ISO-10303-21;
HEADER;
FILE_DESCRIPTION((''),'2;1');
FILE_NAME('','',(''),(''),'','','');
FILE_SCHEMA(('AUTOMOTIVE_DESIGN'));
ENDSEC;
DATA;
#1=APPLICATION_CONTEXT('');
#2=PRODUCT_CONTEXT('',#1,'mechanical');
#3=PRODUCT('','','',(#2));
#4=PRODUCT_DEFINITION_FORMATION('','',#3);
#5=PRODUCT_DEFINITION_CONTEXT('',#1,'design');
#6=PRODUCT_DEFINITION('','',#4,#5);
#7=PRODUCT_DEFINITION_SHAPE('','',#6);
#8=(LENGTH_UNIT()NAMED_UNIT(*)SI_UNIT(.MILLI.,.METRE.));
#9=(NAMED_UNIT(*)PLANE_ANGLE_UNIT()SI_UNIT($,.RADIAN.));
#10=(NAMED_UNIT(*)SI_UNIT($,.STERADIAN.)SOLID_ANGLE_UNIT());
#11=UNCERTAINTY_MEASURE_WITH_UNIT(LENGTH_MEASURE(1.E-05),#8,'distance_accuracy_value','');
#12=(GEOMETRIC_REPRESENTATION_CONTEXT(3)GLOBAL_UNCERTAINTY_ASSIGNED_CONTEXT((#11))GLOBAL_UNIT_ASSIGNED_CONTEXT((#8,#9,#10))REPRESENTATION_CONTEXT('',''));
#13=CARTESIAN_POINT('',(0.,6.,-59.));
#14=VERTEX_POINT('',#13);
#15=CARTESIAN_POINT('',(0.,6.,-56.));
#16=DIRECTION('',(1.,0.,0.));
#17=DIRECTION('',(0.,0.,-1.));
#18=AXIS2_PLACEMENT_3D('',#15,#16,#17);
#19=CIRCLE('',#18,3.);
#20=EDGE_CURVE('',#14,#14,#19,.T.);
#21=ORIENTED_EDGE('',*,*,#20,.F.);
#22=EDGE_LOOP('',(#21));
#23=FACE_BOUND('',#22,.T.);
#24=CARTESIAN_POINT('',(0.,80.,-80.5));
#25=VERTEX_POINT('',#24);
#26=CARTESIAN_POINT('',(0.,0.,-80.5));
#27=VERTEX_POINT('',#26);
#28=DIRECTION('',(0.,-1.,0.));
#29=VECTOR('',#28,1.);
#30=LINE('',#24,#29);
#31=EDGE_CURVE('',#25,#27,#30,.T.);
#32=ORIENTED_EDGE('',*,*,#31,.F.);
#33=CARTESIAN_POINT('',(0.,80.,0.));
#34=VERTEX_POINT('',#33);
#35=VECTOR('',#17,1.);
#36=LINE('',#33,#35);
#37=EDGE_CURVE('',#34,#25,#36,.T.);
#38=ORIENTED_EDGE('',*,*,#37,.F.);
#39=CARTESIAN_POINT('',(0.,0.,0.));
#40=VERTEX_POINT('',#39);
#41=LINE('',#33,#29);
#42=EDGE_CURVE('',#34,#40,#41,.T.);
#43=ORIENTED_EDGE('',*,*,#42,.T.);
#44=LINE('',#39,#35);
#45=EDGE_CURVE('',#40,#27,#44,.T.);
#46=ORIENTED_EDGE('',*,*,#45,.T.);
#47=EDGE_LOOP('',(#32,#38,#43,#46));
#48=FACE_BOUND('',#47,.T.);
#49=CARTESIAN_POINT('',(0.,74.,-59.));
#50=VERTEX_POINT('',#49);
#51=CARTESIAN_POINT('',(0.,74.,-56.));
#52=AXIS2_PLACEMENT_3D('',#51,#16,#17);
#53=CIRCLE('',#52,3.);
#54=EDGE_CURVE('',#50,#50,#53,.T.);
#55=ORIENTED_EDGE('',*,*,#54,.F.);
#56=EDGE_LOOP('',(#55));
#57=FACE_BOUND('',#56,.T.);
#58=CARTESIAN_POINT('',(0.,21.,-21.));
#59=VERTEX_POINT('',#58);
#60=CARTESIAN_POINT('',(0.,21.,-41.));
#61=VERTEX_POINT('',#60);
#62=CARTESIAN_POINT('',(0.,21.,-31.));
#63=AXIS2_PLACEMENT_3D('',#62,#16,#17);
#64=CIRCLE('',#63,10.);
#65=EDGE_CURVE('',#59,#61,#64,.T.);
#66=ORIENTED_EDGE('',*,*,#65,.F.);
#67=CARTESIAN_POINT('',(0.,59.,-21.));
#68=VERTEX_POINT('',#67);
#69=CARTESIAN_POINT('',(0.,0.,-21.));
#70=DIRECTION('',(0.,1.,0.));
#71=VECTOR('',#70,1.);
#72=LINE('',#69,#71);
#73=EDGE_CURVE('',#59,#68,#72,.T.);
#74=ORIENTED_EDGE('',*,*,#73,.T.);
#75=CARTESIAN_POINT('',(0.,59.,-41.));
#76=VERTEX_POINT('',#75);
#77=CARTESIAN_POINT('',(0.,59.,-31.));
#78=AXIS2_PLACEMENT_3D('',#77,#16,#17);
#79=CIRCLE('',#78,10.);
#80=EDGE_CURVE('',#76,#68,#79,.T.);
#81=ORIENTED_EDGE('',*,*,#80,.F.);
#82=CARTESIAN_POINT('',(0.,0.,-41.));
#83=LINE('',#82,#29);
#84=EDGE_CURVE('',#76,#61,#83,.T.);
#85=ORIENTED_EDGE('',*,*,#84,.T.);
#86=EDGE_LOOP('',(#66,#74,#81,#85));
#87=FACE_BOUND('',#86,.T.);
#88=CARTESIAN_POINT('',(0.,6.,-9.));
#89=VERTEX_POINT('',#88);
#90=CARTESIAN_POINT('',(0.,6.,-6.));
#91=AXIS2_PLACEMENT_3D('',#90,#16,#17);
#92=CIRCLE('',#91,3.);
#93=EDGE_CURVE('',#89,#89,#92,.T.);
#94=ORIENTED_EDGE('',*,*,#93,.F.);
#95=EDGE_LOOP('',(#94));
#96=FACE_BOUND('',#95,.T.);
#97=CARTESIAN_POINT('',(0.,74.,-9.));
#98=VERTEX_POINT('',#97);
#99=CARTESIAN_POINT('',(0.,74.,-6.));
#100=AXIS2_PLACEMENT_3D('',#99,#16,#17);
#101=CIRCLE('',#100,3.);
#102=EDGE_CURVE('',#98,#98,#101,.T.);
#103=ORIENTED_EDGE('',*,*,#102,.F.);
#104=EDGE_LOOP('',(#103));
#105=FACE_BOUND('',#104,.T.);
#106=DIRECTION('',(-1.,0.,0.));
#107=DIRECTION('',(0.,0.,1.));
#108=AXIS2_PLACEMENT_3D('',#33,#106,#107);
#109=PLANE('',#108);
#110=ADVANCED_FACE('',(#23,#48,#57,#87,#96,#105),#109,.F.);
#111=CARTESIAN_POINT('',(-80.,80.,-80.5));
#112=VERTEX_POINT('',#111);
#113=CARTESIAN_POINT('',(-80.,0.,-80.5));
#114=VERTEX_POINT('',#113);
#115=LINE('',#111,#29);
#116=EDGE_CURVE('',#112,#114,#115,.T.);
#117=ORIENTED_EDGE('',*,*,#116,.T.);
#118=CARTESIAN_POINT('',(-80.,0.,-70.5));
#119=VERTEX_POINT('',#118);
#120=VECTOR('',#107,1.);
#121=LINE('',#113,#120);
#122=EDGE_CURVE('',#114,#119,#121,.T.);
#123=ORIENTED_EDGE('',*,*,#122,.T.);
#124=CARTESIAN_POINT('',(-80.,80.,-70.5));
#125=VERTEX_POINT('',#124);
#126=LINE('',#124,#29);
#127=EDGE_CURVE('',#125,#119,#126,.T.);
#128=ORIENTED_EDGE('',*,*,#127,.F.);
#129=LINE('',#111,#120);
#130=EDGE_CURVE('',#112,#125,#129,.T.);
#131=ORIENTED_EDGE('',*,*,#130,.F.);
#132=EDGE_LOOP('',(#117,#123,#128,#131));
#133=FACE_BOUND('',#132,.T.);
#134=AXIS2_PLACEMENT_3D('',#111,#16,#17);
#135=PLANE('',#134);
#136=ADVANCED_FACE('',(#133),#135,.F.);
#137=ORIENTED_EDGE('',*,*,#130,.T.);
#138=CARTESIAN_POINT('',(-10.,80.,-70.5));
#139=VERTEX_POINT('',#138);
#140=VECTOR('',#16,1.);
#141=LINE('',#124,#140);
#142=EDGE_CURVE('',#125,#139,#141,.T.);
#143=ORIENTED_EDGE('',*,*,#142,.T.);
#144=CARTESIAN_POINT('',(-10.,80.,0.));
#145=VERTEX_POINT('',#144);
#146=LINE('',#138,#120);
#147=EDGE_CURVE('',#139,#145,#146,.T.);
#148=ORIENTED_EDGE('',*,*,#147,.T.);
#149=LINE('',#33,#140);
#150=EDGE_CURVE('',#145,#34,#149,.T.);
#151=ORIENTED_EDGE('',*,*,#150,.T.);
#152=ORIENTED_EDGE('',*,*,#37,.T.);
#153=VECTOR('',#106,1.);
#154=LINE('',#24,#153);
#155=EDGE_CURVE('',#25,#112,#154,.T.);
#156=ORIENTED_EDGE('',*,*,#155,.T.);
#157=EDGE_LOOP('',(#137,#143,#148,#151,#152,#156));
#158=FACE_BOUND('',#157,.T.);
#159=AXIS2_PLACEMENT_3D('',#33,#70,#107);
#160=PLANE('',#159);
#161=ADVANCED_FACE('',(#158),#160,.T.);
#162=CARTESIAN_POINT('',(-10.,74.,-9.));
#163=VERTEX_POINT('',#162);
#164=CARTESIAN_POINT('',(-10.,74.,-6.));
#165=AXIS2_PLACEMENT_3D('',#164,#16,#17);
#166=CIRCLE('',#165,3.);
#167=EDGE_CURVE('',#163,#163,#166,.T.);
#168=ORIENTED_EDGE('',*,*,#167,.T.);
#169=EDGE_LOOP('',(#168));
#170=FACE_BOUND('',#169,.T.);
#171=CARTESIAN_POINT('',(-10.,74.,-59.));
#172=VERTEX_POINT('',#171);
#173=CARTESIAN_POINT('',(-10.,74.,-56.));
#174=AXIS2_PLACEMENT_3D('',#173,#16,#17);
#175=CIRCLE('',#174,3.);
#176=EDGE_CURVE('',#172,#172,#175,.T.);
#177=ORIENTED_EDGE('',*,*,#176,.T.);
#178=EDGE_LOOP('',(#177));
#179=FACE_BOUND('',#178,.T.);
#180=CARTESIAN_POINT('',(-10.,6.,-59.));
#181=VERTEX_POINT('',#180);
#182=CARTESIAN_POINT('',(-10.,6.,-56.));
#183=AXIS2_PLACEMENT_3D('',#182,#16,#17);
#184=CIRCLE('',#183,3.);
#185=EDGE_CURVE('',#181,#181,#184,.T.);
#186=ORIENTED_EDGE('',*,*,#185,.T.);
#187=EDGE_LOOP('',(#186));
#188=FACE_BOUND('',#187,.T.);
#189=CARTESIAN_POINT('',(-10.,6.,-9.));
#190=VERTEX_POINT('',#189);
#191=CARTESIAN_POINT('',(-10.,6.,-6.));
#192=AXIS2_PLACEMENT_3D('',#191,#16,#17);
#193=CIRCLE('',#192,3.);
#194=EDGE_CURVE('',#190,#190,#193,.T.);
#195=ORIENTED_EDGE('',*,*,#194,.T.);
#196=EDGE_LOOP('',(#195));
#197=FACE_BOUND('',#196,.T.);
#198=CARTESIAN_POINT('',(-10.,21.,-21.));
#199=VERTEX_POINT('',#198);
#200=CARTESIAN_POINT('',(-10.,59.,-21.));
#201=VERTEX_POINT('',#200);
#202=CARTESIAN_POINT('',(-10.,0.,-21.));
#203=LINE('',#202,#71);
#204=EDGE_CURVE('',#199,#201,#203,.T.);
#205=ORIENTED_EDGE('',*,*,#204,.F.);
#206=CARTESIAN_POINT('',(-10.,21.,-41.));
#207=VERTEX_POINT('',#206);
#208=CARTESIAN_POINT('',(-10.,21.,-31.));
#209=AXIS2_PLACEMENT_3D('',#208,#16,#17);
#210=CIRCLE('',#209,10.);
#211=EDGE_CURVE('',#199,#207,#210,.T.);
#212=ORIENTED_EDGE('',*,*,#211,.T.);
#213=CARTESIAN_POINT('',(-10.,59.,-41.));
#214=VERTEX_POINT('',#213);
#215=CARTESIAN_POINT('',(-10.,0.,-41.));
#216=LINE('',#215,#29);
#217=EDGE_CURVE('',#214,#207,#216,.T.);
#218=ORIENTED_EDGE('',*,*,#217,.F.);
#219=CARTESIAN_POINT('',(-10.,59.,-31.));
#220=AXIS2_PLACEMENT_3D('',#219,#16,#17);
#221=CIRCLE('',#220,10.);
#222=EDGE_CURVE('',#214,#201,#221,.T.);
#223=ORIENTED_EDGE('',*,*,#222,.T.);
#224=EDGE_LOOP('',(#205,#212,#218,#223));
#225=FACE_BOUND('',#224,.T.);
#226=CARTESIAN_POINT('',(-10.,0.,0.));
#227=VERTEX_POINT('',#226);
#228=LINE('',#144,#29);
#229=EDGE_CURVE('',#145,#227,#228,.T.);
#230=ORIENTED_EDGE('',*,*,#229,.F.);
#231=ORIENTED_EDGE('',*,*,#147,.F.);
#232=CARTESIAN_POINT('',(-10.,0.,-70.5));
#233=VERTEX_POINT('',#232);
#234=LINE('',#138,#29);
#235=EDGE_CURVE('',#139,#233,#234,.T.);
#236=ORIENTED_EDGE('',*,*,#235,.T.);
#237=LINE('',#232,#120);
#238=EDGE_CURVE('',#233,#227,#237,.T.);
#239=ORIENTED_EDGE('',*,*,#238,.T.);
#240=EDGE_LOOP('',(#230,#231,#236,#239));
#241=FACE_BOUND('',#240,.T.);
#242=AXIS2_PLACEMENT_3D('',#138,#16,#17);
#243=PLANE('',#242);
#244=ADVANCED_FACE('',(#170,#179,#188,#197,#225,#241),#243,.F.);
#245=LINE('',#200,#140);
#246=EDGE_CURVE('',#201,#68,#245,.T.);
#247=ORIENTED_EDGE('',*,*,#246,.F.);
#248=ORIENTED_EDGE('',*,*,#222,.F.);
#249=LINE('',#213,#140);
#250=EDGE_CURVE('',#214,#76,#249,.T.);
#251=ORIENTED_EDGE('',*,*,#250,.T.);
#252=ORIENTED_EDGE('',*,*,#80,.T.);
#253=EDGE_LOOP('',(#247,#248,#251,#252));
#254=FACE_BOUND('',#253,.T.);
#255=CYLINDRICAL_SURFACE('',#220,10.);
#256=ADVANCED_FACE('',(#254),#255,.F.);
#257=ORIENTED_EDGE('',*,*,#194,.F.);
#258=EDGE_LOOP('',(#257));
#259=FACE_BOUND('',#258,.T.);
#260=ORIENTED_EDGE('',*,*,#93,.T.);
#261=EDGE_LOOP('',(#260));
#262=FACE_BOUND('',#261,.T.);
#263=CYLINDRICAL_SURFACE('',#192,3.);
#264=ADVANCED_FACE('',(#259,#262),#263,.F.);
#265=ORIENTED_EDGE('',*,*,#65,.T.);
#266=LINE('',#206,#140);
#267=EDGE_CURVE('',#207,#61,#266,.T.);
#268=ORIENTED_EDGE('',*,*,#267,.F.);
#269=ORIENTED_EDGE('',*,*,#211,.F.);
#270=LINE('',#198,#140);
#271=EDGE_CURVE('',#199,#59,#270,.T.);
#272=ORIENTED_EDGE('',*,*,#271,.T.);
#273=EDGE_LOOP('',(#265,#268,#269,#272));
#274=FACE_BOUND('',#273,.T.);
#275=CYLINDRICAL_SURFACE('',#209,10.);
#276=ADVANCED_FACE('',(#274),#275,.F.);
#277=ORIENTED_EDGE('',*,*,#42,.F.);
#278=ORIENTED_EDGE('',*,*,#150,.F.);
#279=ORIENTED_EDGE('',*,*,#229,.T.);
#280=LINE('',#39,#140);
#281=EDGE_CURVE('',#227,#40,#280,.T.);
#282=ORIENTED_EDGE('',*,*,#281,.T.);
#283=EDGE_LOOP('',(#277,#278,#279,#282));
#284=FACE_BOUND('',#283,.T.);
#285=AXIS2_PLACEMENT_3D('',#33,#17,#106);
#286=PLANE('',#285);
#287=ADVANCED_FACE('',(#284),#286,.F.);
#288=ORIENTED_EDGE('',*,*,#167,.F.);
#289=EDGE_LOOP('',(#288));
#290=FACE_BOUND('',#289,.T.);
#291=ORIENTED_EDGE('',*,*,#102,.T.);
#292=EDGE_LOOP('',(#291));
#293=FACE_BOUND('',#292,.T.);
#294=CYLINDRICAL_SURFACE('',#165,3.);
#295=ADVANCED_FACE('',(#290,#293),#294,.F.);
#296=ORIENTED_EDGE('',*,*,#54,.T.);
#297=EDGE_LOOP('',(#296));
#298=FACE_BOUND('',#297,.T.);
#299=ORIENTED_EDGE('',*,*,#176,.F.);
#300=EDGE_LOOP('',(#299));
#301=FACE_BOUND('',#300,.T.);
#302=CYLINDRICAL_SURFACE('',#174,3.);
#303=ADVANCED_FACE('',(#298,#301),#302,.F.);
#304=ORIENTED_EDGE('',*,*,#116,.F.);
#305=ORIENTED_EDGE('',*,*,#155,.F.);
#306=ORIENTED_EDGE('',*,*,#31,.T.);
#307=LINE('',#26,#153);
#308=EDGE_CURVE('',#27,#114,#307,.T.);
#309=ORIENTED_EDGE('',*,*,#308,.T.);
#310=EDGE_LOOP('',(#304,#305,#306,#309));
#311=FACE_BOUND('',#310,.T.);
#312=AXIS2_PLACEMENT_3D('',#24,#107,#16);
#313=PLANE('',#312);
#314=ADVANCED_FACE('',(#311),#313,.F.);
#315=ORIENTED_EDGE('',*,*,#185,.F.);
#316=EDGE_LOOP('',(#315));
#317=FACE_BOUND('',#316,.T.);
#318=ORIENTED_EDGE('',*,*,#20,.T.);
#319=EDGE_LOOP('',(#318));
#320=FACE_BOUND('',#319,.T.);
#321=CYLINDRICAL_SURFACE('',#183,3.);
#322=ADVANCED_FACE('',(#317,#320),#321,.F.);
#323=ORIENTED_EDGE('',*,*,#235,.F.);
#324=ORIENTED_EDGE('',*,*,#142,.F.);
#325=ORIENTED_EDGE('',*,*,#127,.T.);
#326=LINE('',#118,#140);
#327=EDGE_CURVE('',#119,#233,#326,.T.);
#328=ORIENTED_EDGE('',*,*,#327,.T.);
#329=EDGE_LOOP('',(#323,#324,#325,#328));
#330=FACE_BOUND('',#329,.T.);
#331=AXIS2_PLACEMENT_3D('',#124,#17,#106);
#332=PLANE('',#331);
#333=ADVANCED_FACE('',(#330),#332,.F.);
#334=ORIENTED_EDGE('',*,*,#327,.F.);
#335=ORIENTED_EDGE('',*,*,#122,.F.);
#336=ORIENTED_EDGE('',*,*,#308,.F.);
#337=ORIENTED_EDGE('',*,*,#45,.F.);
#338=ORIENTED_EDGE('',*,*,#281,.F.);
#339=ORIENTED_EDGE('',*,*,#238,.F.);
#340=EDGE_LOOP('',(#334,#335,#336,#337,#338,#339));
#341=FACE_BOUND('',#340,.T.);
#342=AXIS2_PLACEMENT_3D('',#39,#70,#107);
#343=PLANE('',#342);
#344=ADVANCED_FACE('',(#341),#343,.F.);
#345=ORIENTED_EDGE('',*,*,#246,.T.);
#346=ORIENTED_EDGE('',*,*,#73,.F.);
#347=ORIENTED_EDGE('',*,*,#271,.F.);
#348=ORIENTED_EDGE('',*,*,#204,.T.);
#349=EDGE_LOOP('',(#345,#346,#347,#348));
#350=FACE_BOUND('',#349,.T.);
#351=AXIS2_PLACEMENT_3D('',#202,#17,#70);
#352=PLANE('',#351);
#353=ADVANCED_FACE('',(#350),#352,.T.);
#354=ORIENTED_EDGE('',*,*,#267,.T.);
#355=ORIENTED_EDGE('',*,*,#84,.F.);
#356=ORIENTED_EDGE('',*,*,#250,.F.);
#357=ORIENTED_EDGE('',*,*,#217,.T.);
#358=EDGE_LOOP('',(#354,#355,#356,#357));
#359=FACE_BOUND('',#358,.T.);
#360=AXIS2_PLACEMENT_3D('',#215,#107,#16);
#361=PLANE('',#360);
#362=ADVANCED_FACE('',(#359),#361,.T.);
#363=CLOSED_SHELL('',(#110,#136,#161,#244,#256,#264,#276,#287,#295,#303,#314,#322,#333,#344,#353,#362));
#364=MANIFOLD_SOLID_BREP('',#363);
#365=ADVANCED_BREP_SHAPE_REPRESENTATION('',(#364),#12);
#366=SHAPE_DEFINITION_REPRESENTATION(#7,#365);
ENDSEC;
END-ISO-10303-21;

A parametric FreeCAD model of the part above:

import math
import FreeCAD as App
import Part
import Sketcher
Q = App.Units.Quantity


def add_polygon(sketch, points):
    """Adds a closed chain of lines whose ends are joined by coincident constraints."""
    first, n = sketch.GeometryCount, len(points)
    for a, b in zip(points, points[1:] + points[:1]):
        sketch.addGeometry(Part.LineSegment(App.Vector(*a, 0), App.Vector(*b, 0)), False)
    for i in range(n):
        sketch.addConstraint(Sketcher.Constraint("Coincident", first + i, 2, first + (i + 1) % n, 1))

doc = App.newDocument("Part")
body = doc.addObject("PartDesign::Body", "Body")

sketch1 = doc.addObject("Sketcher::SketchObject", "Sketch")
body.addObject(sketch1)
sketch1.AttachmentSupport = (doc.XZ_Plane, [""])
sketch1.MapMode = "FlatFace"
add_polygon(sketch1, [(0, 0), (0, -80), (-80, -80), (-80, -70), (-10, -70), (-10, 0)])
sketch1.addConstraint(Sketcher.Constraint("Vertical", 0))
sketch1.addConstraint(Sketcher.Constraint("Horizontal", 1))
sketch1.addConstraint(Sketcher.Constraint("Vertical", 2))
sketch1.addConstraint(Sketcher.Constraint("Horizontal", 3))
sketch1.addConstraint(Sketcher.Constraint("Vertical", 4))
sketch1.addConstraint(Sketcher.Constraint("Horizontal", 5))
sketch1.addConstraint(Sketcher.Constraint("Coincident", 5, 2, -1, 1))
sketch1.addConstraint(Sketcher.Constraint("Equal", 5, 2))
sketch1.addConstraint(Sketcher.Constraint("DistanceX", 1, 2, 1, 1, Q("80 mm")))
sketch1.addConstraint(Sketcher.Constraint("DistanceX", 3, 1, 3, 2, Q("70 mm")))
sketch1.addConstraint(Sketcher.Constraint("DistanceY", 0, 2, 0, 1, Q("80.5 mm")))
pad1 = doc.addObject("PartDesign::Pad", "Pad")
body.addObject(pad1)
pad1.Profile = sketch1
pad1.Length = 80
pad1.Reversed = True

sketch2 = doc.addObject("Sketcher::SketchObject", "Sketch001")
body.addObject(sketch2)
sketch2.AttachmentSupport = (doc.YZ_Plane, [""])
sketch2.MapMode = "FlatFace"
sketch2.addGeometry(Part.Circle(App.Vector(6, -6, 0), App.Vector(0, 0, 1), 3), False)
sketch2.addGeometry(Part.Circle(App.Vector(74, -6, 0), App.Vector(0, 0, 1), 3), False)
sketch2.addGeometry(Part.Circle(App.Vector(74, -56, 0), App.Vector(0, 0, 1), 3), False)
sketch2.addGeometry(Part.Circle(App.Vector(6, -56, 0), App.Vector(0, 0, 1), 3), False)
sketch2.addConstraint(Sketcher.Constraint("Equal", 0, 1))
sketch2.addConstraint(Sketcher.Constraint("Equal", 1, 2))
sketch2.addConstraint(Sketcher.Constraint("Equal", 2, 3))
sketch2.addConstraint(Sketcher.Constraint("Horizontal", 0, 3, 1, 3))
sketch2.addConstraint(Sketcher.Constraint("Horizontal", 2, 3, 3, 3))
sketch2.addConstraint(Sketcher.Constraint("Vertical", 1, 3, 2, 3))
sketch2.addConstraint(Sketcher.Constraint("Vertical", 0, 3, 3, 3))
sketch2.addConstraint(Sketcher.Constraint("Diameter", 0, Q("6 mm")))
sketch2.addConstraint(Sketcher.Constraint("DistanceX", -1, 1, 0, 3, Q("6 mm")))
sketch2.addConstraint(Sketcher.Constraint("DistanceY", 0, 3, -1, 1, Q("6 mm")))
sketch2.addConstraint(Sketcher.Constraint("DistanceX", -1, 1, 1, 3, Q("74 mm")))
sketch2.addConstraint(Sketcher.Constraint("DistanceY", 2, 3, -1, 1, Q("56 mm")))
pocket1 = doc.addObject("PartDesign::Pocket", "Pocket")
body.addObject(pocket1)
pocket1.Profile = sketch2
pocket1.Length = 10

sketch3 = doc.addObject("Sketcher::SketchObject", "Sketch002")
body.addObject(sketch3)
sketch3.AttachmentSupport = (doc.YZ_Plane, [""])
sketch3.MapMode = "FlatFace"
sketch3.addGeometry(Part.LineSegment(App.Vector(59, -21, 0), App.Vector(21, -21, 0)), False)
sketch3.addGeometry(Part.ArcOfCircle(Part.Circle(App.Vector(21, -31, 0), App.Vector(0, 0, 1), 10), math.radians(90), math.radians(180)), False)
sketch3.addGeometry(Part.ArcOfCircle(Part.Circle(App.Vector(21, -31, 0), App.Vector(0, 0, 1), 10), math.radians(180), math.radians(270)), False)
sketch3.addGeometry(Part.LineSegment(App.Vector(21, -41, 0), App.Vector(59, -41, 0)), False)
sketch3.addGeometry(Part.ArcOfCircle(Part.Circle(App.Vector(59, -31, 0), App.Vector(0, 0, 1), 10), math.radians(-90), math.radians(0)), False)
sketch3.addGeometry(Part.ArcOfCircle(Part.Circle(App.Vector(59, -31, 0), App.Vector(0, 0, 1), 10), math.radians(0), math.radians(90)), False)
sketch3.addConstraint(Sketcher.Constraint("Tangent", 0, 2, 1, 1))
sketch3.addConstraint(Sketcher.Constraint("Tangent", 1, 2, 2, 1))
sketch3.addConstraint(Sketcher.Constraint("Tangent", 2, 2, 3, 1))
sketch3.addConstraint(Sketcher.Constraint("Tangent", 3, 2, 4, 1))
sketch3.addConstraint(Sketcher.Constraint("Tangent", 4, 2, 5, 1))
sketch3.addConstraint(Sketcher.Constraint("Tangent", 5, 2, 0, 1))
sketch3.addConstraint(Sketcher.Constraint("Horizontal", 0))
sketch3.addConstraint(Sketcher.Constraint("Horizontal", 3))
sketch3.addConstraint(Sketcher.Constraint("Equal", 1, 2))
sketch3.addConstraint(Sketcher.Constraint("Equal", 2, 4))
sketch3.addConstraint(Sketcher.Constraint("Horizontal", 5, 3, 1, 2))
sketch3.addConstraint(Sketcher.Constraint("Horizontal", 1, 2, 4, 2))
sketch3.addConstraint(Sketcher.Constraint("Radius", 1, Q("10 mm")))
sketch3.addConstraint(Sketcher.Constraint("DistanceX", 0, 2, 0, 1, Q("38 mm")))
sketch3.addConstraint(Sketcher.Constraint("DistanceX", -1, 1, 1, 3, Q("21 mm")))
sketch3.addConstraint(Sketcher.Constraint("DistanceY", 1, 3, -1, 1, Q("31 mm")))
pocket2 = doc.addObject("PartDesign::Pocket", "Pocket001")
body.addObject(pocket2)
pocket2.Profile = sketch3
pocket2.Length = 10

doc.recompute()
